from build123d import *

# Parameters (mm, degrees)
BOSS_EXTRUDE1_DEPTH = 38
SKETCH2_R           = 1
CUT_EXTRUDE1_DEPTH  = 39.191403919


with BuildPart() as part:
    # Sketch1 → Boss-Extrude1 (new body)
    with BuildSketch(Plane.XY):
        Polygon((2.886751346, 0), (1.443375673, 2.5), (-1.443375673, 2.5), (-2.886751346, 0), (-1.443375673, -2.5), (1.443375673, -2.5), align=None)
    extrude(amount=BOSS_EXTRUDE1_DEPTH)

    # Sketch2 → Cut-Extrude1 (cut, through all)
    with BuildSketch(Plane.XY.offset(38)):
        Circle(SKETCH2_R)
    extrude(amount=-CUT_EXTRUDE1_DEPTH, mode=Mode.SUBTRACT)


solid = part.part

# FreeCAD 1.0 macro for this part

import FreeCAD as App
import Part
import Sketcher
from FreeCAD import Vector
Q = App.Units.Quantity

doc = App.newDocument("Part")
body = doc.addObject("PartDesign::Body", "Body")

# Sketch on XY plane
sketch1 = doc.addObject("Sketcher::SketchObject", "Sketch")
body.addObject(sketch1)
sketch1.AttachmentSupport = (doc.XY_Plane, [""])
sketch1.MapMode = "FlatFace"
sketch1.addGeometry(Part.LineSegment(Vector(2.9, 0, 0), Vector(1.4, 2.5, 0)), False)
sketch1.addGeometry(Part.LineSegment(Vector(1.4, 2.5, 0), Vector(-1.4, 2.5, 0)), False)
sketch1.addGeometry(Part.LineSegment(Vector(-1.4, 2.5, 0), Vector(-2.9, 0, 0)), False)
sketch1.addGeometry(Part.LineSegment(Vector(-2.9, 0, 0), Vector(-1.4, -2.5, 0)), False)
sketch1.addGeometry(Part.LineSegment(Vector(-1.4, -2.5, 0), Vector(1.4, -2.5, 0)), False)
sketch1.addGeometry(Part.LineSegment(Vector(1.4, -2.5, 0), Vector(2.9, 0, 0)), False)
sketch1.addConstraint(Sketcher.Constraint("Coincident", 0, 2, 1, 1))
sketch1.addConstraint(Sketcher.Constraint("Coincident", 1, 2, 2, 1))
sketch1.addConstraint(Sketcher.Constraint("Coincident", 2, 2, 3, 1))
sketch1.addConstraint(Sketcher.Constraint("Coincident", 3, 2, 4, 1))
sketch1.addConstraint(Sketcher.Constraint("Coincident", 4, 2, 5, 1))
sketch1.addConstraint(Sketcher.Constraint("Coincident", 5, 2, 0, 1))
sketch1.addConstraint(Sketcher.Constraint("Horizontal", 1))
sketch1.addConstraint(Sketcher.Constraint("Horizontal", 4))
sketch1.addConstraint(Sketcher.Constraint("Symmetric", 0, 2, 3, 2, -1, 1))
sketch1.addConstraint(Sketcher.Constraint("Symmetric", 2, 2, 5, 2, -1, 1))
sketch1.addConstraint(Sketcher.Constraint("PointOnObject", 2, 2, -1))
sketch1.addConstraint(Sketcher.Constraint("Parallel", 2, 5))
sketch1.addConstraint(Sketcher.Constraint("Vertical", 1, 2, 3, 2))
sketch1.addConstraint(Sketcher.Constraint("Angle", 0, Q("120 deg")))
sketch1.addConstraint(Sketcher.Constraint("DistanceY", 3, 2, 1, 2, Q("5 mm")))
sketch1.addConstraint(Sketcher.Constraint("DistanceX", 1, 2, 1, 1, Q("2.886751 mm")))
pad1 = doc.addObject("PartDesign::Pad", "Pad")
body.addObject(pad1)
pad1.Profile = sketch1
pad1.Length = 38

# Sketch on XY plane
sketch2 = doc.addObject("Sketcher::SketchObject", "Sketch001")
body.addObject(sketch2)
sketch2.AttachmentSupport = (doc.XY_Plane, [""])
sketch2.MapMode = "FlatFace"
sketch2.AttachmentOffset = App.Placement(Vector(0, 0, 38), App.Rotation())
sketch2.addGeometry(Part.Circle(Vector(0, 0, 0), Vector(0, 0, 1), 1), False)
sketch2.addConstraint(Sketcher.Constraint("Coincident", 0, 3, -1, 1))
sketch2.addConstraint(Sketcher.Constraint("Diameter", 0, Q("2 mm")))
pocket1 = doc.addObject("PartDesign::Pocket", "Pocket")
body.addObject(pocket1)
pocket1.Profile = sketch2
pocket1.Type = "ThroughAll"

doc.recompute()
